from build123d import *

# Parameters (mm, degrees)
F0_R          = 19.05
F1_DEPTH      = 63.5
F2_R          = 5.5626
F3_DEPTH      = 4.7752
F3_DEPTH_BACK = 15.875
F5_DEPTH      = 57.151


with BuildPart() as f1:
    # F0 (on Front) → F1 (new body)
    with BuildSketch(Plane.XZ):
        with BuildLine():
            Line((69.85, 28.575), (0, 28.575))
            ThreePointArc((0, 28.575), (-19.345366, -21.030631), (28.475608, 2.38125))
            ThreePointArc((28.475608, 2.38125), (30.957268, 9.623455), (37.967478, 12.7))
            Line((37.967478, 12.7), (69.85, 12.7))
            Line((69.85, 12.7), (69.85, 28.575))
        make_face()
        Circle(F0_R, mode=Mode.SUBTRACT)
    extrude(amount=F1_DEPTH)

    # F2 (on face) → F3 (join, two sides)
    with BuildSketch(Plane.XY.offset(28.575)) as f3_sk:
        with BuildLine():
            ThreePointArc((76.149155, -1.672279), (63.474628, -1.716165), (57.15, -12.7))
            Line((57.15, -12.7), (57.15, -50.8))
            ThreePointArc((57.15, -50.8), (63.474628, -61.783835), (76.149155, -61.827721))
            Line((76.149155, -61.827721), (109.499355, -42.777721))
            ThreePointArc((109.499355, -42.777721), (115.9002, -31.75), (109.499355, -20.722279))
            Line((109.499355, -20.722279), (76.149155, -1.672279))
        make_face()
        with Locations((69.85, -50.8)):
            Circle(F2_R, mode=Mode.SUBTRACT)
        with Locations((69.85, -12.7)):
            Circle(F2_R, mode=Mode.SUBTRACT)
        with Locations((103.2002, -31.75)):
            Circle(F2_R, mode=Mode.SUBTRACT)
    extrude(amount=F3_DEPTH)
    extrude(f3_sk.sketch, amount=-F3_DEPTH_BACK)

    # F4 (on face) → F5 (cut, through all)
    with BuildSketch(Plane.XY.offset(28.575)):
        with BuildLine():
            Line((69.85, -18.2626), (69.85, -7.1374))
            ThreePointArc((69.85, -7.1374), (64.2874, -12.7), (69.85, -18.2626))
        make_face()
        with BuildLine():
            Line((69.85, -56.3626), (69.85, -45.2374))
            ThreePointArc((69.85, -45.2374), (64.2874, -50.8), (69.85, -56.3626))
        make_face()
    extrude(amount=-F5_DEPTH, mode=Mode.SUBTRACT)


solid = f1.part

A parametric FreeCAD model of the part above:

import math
import FreeCAD as App
import Part
import Sketcher
from FreeCAD import Vector
Q = App.Units.Quantity

doc = App.newDocument("Part")
body = doc.addObject("PartDesign::Body", "Body")

# Sketch on XZ plane
sketch1 = body.newObject("Sketcher::SketchObject", "Sketch")
sketch1.AttachmentSupport = (doc.getObject("XZ_Plane"), [""])
sketch1.MapMode = "FlatFace"
sketch1.addGeometry([
    Part.LineSegment(Vector(69.85, 28.575, 0), Vector(0, 28.575, 0)),  # 0
    Part.ArcOfCircle(Part.Circle(Vector(0, 0, 0), Vector(0, 0, 1), 28.575), math.radians(89.999999), math.radians(364.780192)),  # 1
    Part.ArcOfCircle(Part.Circle(Vector(37.967479, 3.174998, 0), Vector(0, 0, 1), 9.525002), math.radians(90.000009), math.radians(184.78018)),  # 2
    Part.LineSegment(Vector(37.967478, 12.7, 0), Vector(69.85, 12.7, 0)),  # 3
    Part.LineSegment(Vector(69.85, 12.7, 0), Vector(69.85, 28.575, 0)),  # 4
    Part.Circle(Vector(0, 0, 0), Vector(0, 0, 1), 19.05),  # 5
], False)
sketch1.addConstraint([
    Sketcher.Constraint("Tangent", 0, 2, 1, 1),
    Sketcher.Constraint("Tangent", 1, 2, 2, 2),
    Sketcher.Constraint("Tangent", 2, 1, 3, 1),
    Sketcher.Constraint("Coincident", 3, 2, 4, 1),
    Sketcher.Constraint("Coincident", 4, 2, 0, 1),
    Sketcher.Constraint("Horizontal", 0),
    Sketcher.Constraint("Horizontal", 3),
    Sketcher.Constraint("Vertical", 4),
    Sketcher.Constraint("Coincident", 1, 3, -1, 1),
    Sketcher.Constraint("Coincident", 5, 3, -1, 1),
    Sketcher.Constraint("Diameter", 5, Q("1.5 in")),
    Sketcher.Constraint("Radius", 1, Q("1.125 in")),
    Sketcher.Constraint("Radius", 2, Q("0.3750001 in")),
    Sketcher.Constraint("DistanceY", 2, 3, 0, 2, Q("1.0000001 in")),
    Sketcher.Constraint("DistanceX", 0, 2, 0, 1, Q("2.75 in")),
])
pad1 = body.newObject("PartDesign::Pad", "Pad")
pad1.Profile = sketch1
pad1.Length = Q("2.5 in")

# Sketch on XY plane
sketch2 = body.newObject("Sketcher::SketchObject", "Sketch001")
sketch2.AttachmentSupport = (doc.getObject("XY_Plane"), [""])
sketch2.MapMode = "FlatFace"
sketch2.AttachmentOffset = App.Placement(Vector(0, 0, 1.125 * 25.4), App.Rotation())
sketch2.addGeometry([
    Part.ArcOfCircle(Part.Circle(Vector(69.849999, -12.7, 0), Vector(0, 0, 1), 12.699999), math.radians(60.264516), math.radians(180.000001)),  # 0
    Part.LineSegment(Vector(57.15, -12.7, 0), Vector(57.15, -50.8, 0)),  # 1
    Part.ArcOfCircle(Part.Circle(Vector(69.849999, -50.8, 0), Vector(0, 0, 1), 12.699999), math.radians(179.999999), math.radians(299.735484)),  # 2
    Part.LineSegment(Vector(76.149155, -61.827721, 0), Vector(109.499355, -42.777721, 0)),  # 3
    Part.ArcOfCircle(Part.Circle(Vector(103.200201, -31.75, 0), Vector(0, 0, 1), 12.699999), math.radians(-60.264524), math.radians(60.264524)),  # 4
    Part.LineSegment(Vector(109.499355, -20.722279, 0), Vector(76.149155, -1.672279, 0)),  # 5
    Part.Circle(Vector(69.85, -50.8, 0), Vector(0, 0, 1), 5.5626),  # 6
    Part.Circle(Vector(103.2002, -31.75, 0), Vector(0, 0, 1), 5.5626),  # 7
    Part.Circle(Vector(69.85, -12.7, 0), Vector(0, 0, 1), 5.5626),  # 8
], False)
sketch2.addConstraint([
    Sketcher.Constraint("Tangent", 0, 2, 1, 1),
    Sketcher.Constraint("Tangent", 1, 2, 2, 1),
    Sketcher.Constraint("Tangent", 2, 2, 3, 1),
    Sketcher.Constraint("Tangent", 3, 2, 4, 1),
    Sketcher.Constraint("Tangent", 4, 2, 5, 1),
    Sketcher.Constraint("Tangent", 5, 2, 0, 1),
    Sketcher.Constraint("Vertical", 1),
    Sketcher.Constraint("Coincident", 6, 3, 2, 3),
    Sketcher.Constraint("Coincident", 7, 3, 4, 3),
    Sketcher.Constraint("Coincident", 8, 3, 0, 3),
    Sketcher.Constraint("Equal", 0, 2),
    Sketcher.Constraint("Equal", 2, 4),
    Sketcher.Constraint("Equal", 6, 7),
    Sketcher.Constraint("Equal", 7, 8),
    Sketcher.Constraint("Vertical", 3, 2, 4, 2),
    Sketcher.Constraint("Radius", 0, Q("0.5 in")),
    Sketcher.Constraint("Diameter", 6, Q("0.438 in")),
    Sketcher.Constraint("DistanceY", 1, 2, 1, 1, Q("1.5 in")),
    Sketcher.Constraint("DistanceY", 2, 3, -1, 1, Q("2 in")),
    Sketcher.Constraint("DistanceX", -1, 1, 0, 3, Q("2.75 in")),
    Sketcher.Constraint("DistanceX", -1, 1, 4, 3, Q("4.063 in")),
])
pad2 = body.newObject("PartDesign::Pad", "Pad001")
pad2.Profile = sketch2
pad2.Type = "TwoLengths"
pad2.Length = Q("0.188 in")
pad2.Length2 = Q("0.625 in")

# Sketch on XY plane
sketch3 = body.newObject("Sketcher::SketchObject", "Sketch002")
sketch3.AttachmentSupport = (doc.getObject("XY_Plane"), [""])
sketch3.MapMode = "FlatFace"
sketch3.AttachmentOffset = App.Placement(Vector(0, 0, 1.125 * 25.4), App.Rotation())
sketch3.addGeometry([
    Part.LineSegment(Vector(69.85, -18.2626, 0), Vector(69.85, -7.1374, 0)),
    Part.ArcOfCircle(Part.Circle(Vector(69.85, -12.7, 0), Vector(0, 0, 1), 5.5626), math.radians(90), math.radians(270)),
    Part.LineSegment(Vector(69.85, -56.3626, 0), Vector(69.85, -45.2374, 0)),
    Part.ArcOfCircle(Part.Circle(Vector(69.85, -50.8, 0), Vector(0, 0, 1), 5.5626), math.radians(90), math.radians(270)),
], False)
sketch3.addConstraint([
    Sketcher.Constraint("Coincident", 0, 1, 1, 2),
    Sketcher.Constraint("Coincident", 1, 1, 0, 2),
    Sketcher.Constraint("Coincident", 2, 1, 3, 2),
    Sketcher.Constraint("Coincident", 3, 1, 2, 2),
    Sketcher.Constraint("Vertical", 0),
    Sketcher.Constraint("Vertical", 2),
    Sketcher.Constraint("Equal", 1, 3),
    Sketcher.Constraint("Vertical", 1, 3, 3, 3),
    Sketcher.Constraint("Vertical", 3, 3, 0, 1),
    Sketcher.Constraint("Vertical", 1, 1, 2, 1),
    Sketcher.Constraint("DistanceY", 3, 3, -1, 1, Q("2 in")),
    Sketcher.Constraint("Radius", 1, Q("0.219 in")),
    Sketcher.Constraint("DistanceY", 1, 3, -1, 1, Q("0.5 in")),
    Sketcher.Constraint("DistanceX", -1, 1, 1, 3, Q("2.75 in")),
])
pocket1 = body.newObject("PartDesign::Pocket", "Pocket")
pocket1.Profile = sketch3
pocket1.Type = "ThroughAll"

doc.recompute()
